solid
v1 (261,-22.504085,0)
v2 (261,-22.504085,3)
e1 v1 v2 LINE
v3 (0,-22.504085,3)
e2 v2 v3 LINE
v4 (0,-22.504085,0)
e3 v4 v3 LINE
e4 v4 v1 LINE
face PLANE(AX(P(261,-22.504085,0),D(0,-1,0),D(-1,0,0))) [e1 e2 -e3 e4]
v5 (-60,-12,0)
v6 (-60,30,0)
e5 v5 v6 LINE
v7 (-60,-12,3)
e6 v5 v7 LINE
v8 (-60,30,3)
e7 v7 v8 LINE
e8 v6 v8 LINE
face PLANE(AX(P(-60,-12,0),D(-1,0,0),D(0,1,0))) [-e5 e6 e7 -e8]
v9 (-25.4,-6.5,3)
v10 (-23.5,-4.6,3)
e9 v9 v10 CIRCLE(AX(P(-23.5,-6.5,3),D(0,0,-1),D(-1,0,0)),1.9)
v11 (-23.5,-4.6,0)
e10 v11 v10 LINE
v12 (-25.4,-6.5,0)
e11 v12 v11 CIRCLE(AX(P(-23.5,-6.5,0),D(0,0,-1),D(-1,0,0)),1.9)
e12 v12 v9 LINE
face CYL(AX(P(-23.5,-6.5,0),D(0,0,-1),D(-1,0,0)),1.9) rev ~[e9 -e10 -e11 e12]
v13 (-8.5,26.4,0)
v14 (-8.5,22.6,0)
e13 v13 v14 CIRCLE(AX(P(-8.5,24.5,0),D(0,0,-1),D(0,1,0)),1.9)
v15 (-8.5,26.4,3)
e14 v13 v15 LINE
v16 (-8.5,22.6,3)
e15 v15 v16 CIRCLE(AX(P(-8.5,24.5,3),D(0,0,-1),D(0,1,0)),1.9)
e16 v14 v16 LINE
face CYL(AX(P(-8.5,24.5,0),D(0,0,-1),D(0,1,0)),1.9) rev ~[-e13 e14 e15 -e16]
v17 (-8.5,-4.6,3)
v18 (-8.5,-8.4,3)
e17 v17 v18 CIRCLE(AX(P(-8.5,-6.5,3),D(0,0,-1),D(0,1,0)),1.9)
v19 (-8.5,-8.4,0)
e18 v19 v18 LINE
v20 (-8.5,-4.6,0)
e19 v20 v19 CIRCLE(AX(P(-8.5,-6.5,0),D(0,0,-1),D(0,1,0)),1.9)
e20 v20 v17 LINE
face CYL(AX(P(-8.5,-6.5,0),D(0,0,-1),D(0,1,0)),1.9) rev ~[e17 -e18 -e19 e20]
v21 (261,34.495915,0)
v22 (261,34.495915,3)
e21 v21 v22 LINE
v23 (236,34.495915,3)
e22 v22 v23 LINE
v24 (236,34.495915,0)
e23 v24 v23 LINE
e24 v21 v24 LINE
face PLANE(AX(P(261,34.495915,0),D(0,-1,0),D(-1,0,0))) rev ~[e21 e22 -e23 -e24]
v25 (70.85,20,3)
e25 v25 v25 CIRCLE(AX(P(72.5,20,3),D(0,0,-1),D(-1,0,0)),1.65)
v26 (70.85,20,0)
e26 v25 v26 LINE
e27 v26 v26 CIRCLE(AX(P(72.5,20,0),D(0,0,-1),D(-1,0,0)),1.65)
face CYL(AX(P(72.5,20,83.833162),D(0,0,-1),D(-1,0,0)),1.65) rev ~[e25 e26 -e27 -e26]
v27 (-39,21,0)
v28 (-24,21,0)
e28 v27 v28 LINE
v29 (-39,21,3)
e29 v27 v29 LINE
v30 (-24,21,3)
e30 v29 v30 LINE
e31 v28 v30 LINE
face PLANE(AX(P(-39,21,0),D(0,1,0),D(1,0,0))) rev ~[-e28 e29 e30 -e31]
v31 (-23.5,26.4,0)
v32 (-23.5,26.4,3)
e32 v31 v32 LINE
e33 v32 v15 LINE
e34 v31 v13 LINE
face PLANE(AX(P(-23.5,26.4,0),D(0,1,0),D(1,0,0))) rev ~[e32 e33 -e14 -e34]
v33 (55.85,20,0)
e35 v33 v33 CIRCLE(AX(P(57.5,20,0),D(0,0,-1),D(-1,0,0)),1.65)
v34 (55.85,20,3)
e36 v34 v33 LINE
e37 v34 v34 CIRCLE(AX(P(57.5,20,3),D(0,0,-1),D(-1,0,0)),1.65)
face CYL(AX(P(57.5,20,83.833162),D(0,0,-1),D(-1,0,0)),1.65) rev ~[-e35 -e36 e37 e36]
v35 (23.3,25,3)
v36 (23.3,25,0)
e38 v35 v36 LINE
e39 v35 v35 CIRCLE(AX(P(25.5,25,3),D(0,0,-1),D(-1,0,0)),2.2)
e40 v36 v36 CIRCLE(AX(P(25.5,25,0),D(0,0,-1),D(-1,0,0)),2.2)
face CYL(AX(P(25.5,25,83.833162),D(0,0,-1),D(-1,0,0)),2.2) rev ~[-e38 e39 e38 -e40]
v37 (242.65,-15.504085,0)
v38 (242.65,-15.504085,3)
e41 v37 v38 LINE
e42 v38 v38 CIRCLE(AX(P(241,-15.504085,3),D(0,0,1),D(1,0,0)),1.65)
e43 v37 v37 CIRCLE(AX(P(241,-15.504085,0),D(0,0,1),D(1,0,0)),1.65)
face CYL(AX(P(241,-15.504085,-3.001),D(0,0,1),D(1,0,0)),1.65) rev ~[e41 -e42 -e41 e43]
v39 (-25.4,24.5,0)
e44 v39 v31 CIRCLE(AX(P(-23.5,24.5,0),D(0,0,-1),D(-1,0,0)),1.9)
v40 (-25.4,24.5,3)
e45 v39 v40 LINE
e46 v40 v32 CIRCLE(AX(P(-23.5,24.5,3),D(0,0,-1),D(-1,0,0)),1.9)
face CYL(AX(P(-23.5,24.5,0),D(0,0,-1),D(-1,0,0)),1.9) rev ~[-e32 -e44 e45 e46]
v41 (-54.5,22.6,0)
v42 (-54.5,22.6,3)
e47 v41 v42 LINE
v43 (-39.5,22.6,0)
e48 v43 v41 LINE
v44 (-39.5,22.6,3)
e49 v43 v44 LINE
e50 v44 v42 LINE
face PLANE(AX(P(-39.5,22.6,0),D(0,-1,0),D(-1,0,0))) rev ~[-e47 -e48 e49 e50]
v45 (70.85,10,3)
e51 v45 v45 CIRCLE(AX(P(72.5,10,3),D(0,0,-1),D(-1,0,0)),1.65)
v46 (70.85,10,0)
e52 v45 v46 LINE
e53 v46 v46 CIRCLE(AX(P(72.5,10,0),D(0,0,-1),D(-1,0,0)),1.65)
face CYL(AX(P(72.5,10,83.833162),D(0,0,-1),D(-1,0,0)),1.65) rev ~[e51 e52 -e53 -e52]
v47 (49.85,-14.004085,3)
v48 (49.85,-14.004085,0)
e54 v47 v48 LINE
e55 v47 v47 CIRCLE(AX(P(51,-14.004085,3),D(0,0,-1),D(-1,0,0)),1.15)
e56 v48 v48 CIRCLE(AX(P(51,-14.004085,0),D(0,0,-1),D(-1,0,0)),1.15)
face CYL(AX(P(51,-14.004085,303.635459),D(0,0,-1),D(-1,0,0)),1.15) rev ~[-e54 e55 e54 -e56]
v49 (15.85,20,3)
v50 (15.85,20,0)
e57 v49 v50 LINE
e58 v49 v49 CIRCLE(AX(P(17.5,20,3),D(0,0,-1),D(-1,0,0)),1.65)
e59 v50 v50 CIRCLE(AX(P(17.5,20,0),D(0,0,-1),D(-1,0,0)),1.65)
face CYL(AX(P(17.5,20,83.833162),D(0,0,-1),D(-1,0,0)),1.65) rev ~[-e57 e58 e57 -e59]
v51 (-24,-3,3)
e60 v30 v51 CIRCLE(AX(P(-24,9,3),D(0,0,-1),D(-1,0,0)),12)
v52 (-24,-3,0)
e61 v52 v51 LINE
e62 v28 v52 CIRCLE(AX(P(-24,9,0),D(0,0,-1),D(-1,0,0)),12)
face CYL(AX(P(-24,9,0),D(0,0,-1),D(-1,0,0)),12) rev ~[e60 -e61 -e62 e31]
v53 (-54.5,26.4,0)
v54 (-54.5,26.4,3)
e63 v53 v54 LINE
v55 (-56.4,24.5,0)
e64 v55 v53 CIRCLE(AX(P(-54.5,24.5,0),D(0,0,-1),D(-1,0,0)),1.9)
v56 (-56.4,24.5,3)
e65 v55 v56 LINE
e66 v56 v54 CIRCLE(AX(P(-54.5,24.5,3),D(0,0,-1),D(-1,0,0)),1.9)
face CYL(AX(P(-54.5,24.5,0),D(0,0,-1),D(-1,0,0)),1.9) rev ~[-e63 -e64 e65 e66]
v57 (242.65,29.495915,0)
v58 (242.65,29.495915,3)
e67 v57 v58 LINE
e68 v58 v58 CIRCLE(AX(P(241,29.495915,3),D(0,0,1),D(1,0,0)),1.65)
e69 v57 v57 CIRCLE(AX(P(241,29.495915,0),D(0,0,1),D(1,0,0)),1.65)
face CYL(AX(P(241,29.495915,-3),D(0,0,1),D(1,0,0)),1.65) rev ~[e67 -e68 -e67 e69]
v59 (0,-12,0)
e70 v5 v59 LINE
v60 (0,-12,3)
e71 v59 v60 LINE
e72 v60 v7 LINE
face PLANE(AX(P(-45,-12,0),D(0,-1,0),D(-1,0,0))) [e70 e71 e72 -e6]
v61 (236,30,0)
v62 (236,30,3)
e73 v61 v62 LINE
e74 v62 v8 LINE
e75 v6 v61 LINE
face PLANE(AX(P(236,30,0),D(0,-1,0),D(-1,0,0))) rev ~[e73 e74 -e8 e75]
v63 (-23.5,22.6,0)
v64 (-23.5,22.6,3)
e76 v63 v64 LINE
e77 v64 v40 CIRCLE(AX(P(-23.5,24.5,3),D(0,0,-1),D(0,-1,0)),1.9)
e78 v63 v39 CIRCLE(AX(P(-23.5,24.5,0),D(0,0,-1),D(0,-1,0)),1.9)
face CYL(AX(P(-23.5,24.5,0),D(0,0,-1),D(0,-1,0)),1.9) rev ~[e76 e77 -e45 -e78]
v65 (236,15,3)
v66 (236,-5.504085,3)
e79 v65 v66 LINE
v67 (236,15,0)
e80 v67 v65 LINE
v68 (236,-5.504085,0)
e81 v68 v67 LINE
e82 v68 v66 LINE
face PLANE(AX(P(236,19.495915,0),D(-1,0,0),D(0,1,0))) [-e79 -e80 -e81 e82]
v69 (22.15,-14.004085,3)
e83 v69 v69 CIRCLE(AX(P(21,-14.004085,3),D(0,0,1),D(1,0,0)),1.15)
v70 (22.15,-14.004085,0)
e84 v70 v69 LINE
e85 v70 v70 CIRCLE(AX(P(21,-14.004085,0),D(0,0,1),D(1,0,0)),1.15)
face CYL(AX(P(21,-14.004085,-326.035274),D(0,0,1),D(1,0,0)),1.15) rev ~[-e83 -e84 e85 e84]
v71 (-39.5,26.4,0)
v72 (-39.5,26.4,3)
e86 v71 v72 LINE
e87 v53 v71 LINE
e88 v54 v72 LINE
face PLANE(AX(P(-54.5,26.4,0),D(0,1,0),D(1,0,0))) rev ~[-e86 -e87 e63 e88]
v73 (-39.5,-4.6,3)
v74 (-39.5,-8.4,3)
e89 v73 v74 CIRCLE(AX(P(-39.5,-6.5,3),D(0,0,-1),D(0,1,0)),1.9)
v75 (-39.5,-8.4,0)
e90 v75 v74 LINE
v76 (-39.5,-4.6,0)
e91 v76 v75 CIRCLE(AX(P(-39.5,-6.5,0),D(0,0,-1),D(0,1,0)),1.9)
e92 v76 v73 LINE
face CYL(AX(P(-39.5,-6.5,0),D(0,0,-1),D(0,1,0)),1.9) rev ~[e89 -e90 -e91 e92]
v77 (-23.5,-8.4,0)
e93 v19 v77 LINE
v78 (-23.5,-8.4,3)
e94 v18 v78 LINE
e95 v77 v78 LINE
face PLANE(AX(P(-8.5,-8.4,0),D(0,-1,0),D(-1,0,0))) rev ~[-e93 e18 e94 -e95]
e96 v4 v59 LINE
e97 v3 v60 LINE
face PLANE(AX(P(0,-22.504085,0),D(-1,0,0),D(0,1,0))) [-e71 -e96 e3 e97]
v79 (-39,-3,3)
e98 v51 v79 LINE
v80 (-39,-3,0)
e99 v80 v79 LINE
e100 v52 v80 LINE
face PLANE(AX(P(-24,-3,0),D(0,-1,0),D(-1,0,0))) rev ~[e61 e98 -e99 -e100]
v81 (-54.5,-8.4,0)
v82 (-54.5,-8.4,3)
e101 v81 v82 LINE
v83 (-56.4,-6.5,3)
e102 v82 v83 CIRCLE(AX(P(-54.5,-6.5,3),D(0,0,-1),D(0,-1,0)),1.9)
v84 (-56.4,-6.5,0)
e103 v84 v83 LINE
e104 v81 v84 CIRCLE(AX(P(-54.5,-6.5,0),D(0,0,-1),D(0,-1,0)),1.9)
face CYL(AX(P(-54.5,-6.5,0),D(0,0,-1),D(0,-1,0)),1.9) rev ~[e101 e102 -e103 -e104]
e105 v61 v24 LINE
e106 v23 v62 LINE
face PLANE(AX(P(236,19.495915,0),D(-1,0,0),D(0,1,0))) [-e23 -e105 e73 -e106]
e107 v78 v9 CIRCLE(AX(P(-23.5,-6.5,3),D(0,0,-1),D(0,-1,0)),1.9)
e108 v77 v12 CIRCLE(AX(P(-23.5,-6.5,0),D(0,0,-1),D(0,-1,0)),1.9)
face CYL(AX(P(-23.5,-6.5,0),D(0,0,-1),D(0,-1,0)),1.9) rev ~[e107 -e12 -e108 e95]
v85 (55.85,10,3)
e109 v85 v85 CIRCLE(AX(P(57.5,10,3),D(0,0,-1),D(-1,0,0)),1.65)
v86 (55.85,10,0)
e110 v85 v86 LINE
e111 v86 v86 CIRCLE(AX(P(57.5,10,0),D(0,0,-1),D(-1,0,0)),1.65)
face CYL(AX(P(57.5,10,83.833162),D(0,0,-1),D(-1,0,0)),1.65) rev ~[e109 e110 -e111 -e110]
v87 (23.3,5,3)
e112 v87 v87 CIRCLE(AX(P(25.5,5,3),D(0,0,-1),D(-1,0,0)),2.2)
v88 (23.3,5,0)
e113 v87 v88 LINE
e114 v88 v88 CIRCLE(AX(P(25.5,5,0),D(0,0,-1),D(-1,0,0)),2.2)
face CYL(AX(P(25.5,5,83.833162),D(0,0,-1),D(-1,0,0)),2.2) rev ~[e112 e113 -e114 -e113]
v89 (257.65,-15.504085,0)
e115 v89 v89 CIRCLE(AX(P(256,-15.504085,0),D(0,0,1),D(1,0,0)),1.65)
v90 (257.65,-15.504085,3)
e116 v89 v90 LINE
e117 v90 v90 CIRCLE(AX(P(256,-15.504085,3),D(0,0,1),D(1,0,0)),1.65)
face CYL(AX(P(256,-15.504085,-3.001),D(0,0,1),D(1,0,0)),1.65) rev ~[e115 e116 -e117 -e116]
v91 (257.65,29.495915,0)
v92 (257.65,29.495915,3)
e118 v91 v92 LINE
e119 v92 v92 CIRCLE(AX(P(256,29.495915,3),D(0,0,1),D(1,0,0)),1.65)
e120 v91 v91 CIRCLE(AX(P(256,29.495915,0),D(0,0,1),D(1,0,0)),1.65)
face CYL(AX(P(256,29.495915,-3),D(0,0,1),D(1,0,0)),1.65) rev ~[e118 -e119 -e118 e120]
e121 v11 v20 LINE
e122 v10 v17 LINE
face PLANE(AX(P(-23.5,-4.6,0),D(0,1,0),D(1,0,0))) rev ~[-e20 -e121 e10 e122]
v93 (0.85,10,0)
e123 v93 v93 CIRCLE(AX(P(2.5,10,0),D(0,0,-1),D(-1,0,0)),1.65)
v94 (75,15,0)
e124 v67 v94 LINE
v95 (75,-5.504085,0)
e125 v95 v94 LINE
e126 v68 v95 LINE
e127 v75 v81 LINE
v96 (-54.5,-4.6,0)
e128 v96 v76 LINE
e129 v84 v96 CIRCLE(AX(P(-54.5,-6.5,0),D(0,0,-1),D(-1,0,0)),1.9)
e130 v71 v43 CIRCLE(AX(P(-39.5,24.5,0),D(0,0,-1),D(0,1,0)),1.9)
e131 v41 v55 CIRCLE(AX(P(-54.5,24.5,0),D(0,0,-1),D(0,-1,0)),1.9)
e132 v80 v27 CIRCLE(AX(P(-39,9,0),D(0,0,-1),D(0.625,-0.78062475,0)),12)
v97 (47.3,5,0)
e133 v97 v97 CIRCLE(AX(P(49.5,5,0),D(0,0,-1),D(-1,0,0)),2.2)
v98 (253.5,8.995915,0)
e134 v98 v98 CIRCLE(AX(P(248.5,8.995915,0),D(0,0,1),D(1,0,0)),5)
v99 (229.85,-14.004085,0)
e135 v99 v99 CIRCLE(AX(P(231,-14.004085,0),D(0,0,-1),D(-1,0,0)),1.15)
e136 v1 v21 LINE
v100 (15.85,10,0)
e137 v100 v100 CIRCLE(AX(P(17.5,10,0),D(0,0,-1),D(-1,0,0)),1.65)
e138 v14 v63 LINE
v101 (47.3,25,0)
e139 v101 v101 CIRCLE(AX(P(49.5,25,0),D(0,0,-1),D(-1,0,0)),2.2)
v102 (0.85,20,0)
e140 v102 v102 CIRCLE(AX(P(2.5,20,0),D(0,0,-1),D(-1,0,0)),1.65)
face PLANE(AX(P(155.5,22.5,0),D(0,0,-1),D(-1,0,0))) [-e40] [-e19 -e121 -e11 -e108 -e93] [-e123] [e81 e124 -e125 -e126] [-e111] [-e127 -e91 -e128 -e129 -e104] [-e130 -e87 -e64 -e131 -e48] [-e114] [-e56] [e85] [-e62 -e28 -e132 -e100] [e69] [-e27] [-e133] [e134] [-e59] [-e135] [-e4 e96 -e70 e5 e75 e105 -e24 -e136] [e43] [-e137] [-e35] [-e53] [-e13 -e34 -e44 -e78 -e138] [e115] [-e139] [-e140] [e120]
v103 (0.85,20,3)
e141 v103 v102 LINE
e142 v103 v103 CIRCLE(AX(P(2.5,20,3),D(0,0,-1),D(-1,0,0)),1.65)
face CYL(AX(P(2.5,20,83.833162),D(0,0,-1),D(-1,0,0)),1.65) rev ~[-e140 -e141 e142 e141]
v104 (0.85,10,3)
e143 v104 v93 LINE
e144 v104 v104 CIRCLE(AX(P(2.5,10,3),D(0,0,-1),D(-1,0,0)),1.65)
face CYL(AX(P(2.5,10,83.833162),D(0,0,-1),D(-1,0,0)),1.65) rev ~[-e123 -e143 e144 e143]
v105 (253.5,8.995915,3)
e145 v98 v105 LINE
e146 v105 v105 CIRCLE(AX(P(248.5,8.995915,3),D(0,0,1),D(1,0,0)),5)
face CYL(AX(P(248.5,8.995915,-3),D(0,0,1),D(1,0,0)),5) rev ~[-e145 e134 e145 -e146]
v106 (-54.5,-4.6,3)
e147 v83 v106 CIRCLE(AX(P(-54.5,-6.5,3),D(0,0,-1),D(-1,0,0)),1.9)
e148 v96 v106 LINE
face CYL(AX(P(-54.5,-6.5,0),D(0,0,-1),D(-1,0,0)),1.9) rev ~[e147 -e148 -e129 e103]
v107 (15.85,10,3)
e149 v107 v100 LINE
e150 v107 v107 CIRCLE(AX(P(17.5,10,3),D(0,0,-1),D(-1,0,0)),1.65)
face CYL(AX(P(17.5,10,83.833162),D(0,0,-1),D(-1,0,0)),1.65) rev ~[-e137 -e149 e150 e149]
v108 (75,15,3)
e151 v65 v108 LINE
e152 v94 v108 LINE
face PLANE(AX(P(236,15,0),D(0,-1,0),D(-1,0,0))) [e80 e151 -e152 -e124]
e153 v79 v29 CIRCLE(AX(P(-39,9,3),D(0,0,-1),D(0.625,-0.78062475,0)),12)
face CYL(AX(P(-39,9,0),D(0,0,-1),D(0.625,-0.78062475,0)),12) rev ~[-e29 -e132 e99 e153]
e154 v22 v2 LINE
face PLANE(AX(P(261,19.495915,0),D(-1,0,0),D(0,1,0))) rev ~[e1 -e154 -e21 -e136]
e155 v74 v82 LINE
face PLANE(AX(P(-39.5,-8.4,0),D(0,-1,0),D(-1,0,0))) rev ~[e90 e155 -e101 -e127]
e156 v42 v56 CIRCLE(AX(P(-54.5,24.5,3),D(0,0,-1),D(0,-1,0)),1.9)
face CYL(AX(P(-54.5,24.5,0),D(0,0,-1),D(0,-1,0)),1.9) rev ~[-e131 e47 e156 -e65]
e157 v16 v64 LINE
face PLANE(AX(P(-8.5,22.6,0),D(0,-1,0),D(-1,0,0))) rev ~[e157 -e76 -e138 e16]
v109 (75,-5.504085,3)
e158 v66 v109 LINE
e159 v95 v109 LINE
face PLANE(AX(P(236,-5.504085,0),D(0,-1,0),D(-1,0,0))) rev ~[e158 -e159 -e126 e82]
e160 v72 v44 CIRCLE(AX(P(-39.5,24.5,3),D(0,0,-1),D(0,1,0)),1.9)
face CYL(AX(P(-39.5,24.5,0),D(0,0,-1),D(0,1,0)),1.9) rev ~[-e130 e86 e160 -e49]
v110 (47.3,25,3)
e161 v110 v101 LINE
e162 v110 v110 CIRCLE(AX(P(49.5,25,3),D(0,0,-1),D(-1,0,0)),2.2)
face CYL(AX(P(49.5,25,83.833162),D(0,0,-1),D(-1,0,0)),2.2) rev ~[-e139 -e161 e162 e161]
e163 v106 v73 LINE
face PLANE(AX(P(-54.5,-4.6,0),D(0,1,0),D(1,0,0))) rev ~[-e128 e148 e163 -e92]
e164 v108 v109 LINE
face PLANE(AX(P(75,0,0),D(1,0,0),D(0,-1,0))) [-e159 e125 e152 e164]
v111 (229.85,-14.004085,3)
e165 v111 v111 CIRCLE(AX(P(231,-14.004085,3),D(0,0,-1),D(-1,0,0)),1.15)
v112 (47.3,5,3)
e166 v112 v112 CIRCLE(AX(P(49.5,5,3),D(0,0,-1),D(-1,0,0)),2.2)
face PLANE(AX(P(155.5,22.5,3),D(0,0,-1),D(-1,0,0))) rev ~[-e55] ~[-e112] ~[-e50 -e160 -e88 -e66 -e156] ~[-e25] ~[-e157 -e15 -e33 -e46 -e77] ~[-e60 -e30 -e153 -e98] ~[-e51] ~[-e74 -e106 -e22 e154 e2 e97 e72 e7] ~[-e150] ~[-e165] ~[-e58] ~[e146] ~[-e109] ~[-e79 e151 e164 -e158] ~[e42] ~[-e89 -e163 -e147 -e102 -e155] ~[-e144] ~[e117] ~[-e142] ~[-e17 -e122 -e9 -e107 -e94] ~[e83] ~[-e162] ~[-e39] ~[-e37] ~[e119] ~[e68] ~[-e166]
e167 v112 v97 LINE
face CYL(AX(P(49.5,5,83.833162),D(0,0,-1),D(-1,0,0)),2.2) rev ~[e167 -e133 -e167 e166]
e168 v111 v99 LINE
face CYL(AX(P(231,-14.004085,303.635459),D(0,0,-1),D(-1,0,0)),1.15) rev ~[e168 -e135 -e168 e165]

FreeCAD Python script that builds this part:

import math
import FreeCAD as App
import Part
import Sketcher

V = App.Vector

doc = App.newDocument("Part")
body = doc.addObject("PartDesign::Body", "Body")

# Sketch on XY plane
sketch1 = body.newObject("Sketcher::SketchObject", "Sketch")
sketch1.AttachmentSupport = (doc.getObject("XY_Plane"), [""])
sketch1.MapMode = "FlatFace"
sketch1.addGeometry(Part.LineSegment(V(0, 30, 0), V(0, 0, 0)), False)
sketch1.addGeometry(Part.LineSegment(V(0, 0, 0), V(75, 0, 0)), False)
sketch1.addGeometry(Part.LineSegment(V(75, 0, 0), V(75, 30, 0)), False)
sketch1.addGeometry(Part.LineSegment(V(75, 30, 0), V(0, 30, 0)), False)
sketch1.addConstraint(Sketcher.Constraint("Coincident", 0, 2, 1, 1))
sketch1.addConstraint(Sketcher.Constraint("Coincident", 1, 2, 2, 1))
sketch1.addConstraint(Sketcher.Constraint("Coincident", 2, 2, 3, 1))
sketch1.addConstraint(Sketcher.Constraint("Coincident", 3, 2, 0, 1))
sketch1.addConstraint(Sketcher.Constraint("Vertical", 0))
sketch1.addConstraint(Sketcher.Constraint("Horizontal", 1))
sketch1.addConstraint(Sketcher.Constraint("Vertical", 2))
sketch1.addConstraint(Sketcher.Constraint("Horizontal", 3))
sketch1.addConstraint(Sketcher.Constraint("Coincident", 0, 2, -1, 1))
sketch1.addConstraint(Sketcher.Constraint("DistanceX", 1, 1, 1, 2, 75.0))
sketch1.addConstraint(Sketcher.Constraint("DistanceY", 0, 2, 0, 1, 30.0))
pad1 = body.newObject("PartDesign::Pad", "Pad")
pad1.Profile = sketch1
pad1.Length = 3

# Sketch on XY plane
sketch2 = body.newObject("Sketcher::SketchObject", "Sketch001")
sketch2.AttachmentSupport = (doc.getObject("XY_Plane"), [""])
sketch2.MapMode = "FlatFace"
sketch2.AttachmentOffset = App.Placement(V(0, 0, 3), App.Rotation())
sketch2.addGeometry(Part.Circle(V(25.5, 25, 0), V(0, 0, 1), 2.2), False)
sketch2.addGeometry(Part.Circle(V(49.5, 25, 0), V(0, 0, 1), 2.2), False)
sketch2.addGeometry(Part.Circle(V(49.5, 5, 0), V(0, 0, 1), 2.2), False)
sketch2.addGeometry(Part.Circle(V(25.5, 5, 0), V(0, 0, 1), 2.2), False)
sketch2.addConstraint(Sketcher.Constraint("Equal", 0, 1))
sketch2.addConstraint(Sketcher.Constraint("Equal", 1, 2))
sketch2.addConstraint(Sketcher.Constraint("Equal", 2, 3))
sketch2.addConstraint(Sketcher.Constraint("Horizontal", 0, 3, 1, 3))
sketch2.addConstraint(Sketcher.Constraint("Horizontal", 2, 3, 3, 3))
sketch2.addConstraint(Sketcher.Constraint("Vertical", 1, 3, 2, 3))
sketch2.addConstraint(Sketcher.Constraint("Vertical", 0, 3, 3, 3))
sketch2.addConstraint(Sketcher.Constraint("Diameter", 0, 4.4))
sketch2.addConstraint(Sketcher.Constraint("DistanceY", -1, 1, 0, 3, 25.0))
sketch2.addConstraint(Sketcher.Constraint("DistanceY", -1, 1, 2, 3, 5.0))
sketch2.addConstraint(Sketcher.Constraint("DistanceX", 0, 3, 1, 3, 24.0))
sketch2.addConstraint(Sketcher.Constraint("DistanceX", -1, 1, 0, 3, 25.5))
doc.recompute()
hole = body.newObject("PartDesign::Hole", "Hole")
hole.Profile = sketch2
hole.ThreadType = "None"
hole.Diameter = 4.4
hole.DepthType = "ThroughAll"

# Sketch on XY plane
sketch3 = body.newObject("Sketcher::SketchObject", "Sketch002")
sketch3.AttachmentSupport = (doc.getObject("XY_Plane"), [""])
sketch3.MapMode = "FlatFace"
sketch3.AttachmentOffset = App.Placement(V(0, 0, 3), App.Rotation())
sketch3.addGeometry(Part.Circle(V(2.5, 20, 0), V(0, 0, 1), 1.6), False)
sketch3.addGeometry(Part.Circle(V(17.5, 20, 0), V(0, 0, 1), 1.6), False)
sketch3.addGeometry(Part.Circle(V(17.5, 10, 0), V(0, 0, 1), 1.6), False)
sketch3.addGeometry(Part.Circle(V(2.5, 10, 0), V(0, 0, 1), 1.6), False)
sketch3.addGeometry(Part.Circle(V(57.5, 10, 0), V(0, 0, 1), 1.6), False)
sketch3.addGeometry(Part.Circle(V(57.5, 20, 0), V(0, 0, 1), 1.6), False)
sketch3.addGeometry(Part.Circle(V(72.5, 20, 0), V(0, 0, 1), 1.6), False)
sketch3.addGeometry(Part.Circle(V(72.5, 10, 0), V(0, 0, 1), 1.6), False)
sketch3.addConstraint(Sketcher.Constraint("Equal", 0, 1))
sketch3.addConstraint(Sketcher.Constraint("Equal", 1, 2))
sketch3.addConstraint(Sketcher.Constraint("Equal", 2, 3))
sketch3.addConstraint(Sketcher.Constraint("Equal", 3, 4))
sketch3.addConstraint(Sketcher.Constraint("Equal", 4, 5))
sketch3.addConstraint(Sketcher.Constraint("Equal", 5, 6))
sketch3.addConstraint(Sketcher.Constraint("Equal", 6, 7))
sketch3.addConstraint(Sketcher.Constraint("Horizontal", 0, 3, 1, 3))
sketch3.addConstraint(Sketcher.Constraint("Horizontal", 2, 3, 3, 3))
sketch3.addConstraint(Sketcher.Constraint("Horizontal", 3, 3, 4, 3))
sketch3.addConstraint(Sketcher.Constraint("Horizontal", 1, 3, 5, 3))
sketch3.addConstraint(Sketcher.Constraint("Horizontal", 5, 3, 6, 3))
sketch3.addConstraint(Sketcher.Constraint("Horizontal", 4, 3, 7, 3))
sketch3.addConstraint(Sketcher.Constraint("Vertical", 1, 3, 2, 3))
sketch3.addConstraint(Sketcher.Constraint("Vertical", 0, 3, 3, 3))
sketch3.addConstraint(Sketcher.Constraint("Vertical", 4, 3, 5, 3))
sketch3.addConstraint(Sketcher.Constraint("Vertical", 6, 3, 7, 3))
sketch3.addConstraint(Sketcher.Constraint("Diameter", 0, 3.3))
sketch3.addConstraint(Sketcher.Constraint("DistanceY", -1, 1, 0, 3, 20.0))
sketch3.addConstraint(Sketcher.Constraint("DistanceY", -1, 1, 2, 3, 10.0))
sketch3.addConstraint(Sketcher.Constraint("DistanceX", 0, 3, 1, 3, 15.0))
sketch3.addConstraint(Sketcher.Constraint("DistanceX", 2, 3, 4, 3, 40.0))
sketch3.addConstraint(Sketcher.Constraint("DistanceX", 5, 3, 6, 3, 15.0))
sketch3.addConstraint(Sketcher.Constraint("DistanceX", -1, 1, 0, 3, 2.5))
doc.recompute()
hole2 = body.newObject("PartDesign::Hole", "Hole001")
hole2.Profile = sketch3
hole2.ThreadType = "None"
hole2.Diameter = 3.3
hole2.DepthType = "ThroughAll"

# Sketch on XY plane
sketch4 = body.newObject("Sketcher::SketchObject", "Sketch003")
sketch4.AttachmentSupport = (doc.getObject("XY_Plane"), [""])
sketch4.MapMode = "FlatFace"
sketch4.addGeometry(Part.LineSegment(V(0, 30, 0), V(0, -12, 0)), False)
sketch4.addGeometry(Part.LineSegment(V(0, -12, 0), V(-45, -12, 0)), False)
sketch4.addGeometry(Part.LineSegment(V(-45, -12, 0), V(-45, 30, 0)), False)
sketch4.addGeometry(Part.LineSegment(V(-45, 30, 0), V(0, 30, 0)), False)
sketch4.addConstraint(Sketcher.Constraint("Coincident", 0, 2, 1, 1))
sketch4.addConstraint(Sketcher.Constraint("Coincident", 1, 2, 2, 1))
sketch4.addConstraint(Sketcher.Constraint("Coincident", 2, 2, 3, 1))
sketch4.addConstraint(Sketcher.Constraint("Coincident", 3, 2, 0, 1))
sketch4.addConstraint(Sketcher.Constraint("Vertical", 0))
sketch4.addConstraint(Sketcher.Constraint("Horizontal", 1))
sketch4.addConstraint(Sketcher.Constraint("Vertical", 2))
sketch4.addConstraint(Sketcher.Constraint("Horizontal", 3))
sketch4.addConstraint(Sketcher.Constraint("PointOnObject", 0, 2, -2))
sketch4.addConstraint(Sketcher.Constraint("DistanceX", 1, 2, 1, 1, 45.0))
sketch4.addConstraint(Sketcher.Constraint("DistanceY", 0, 2, 0, 1, 42.0))
sketch4.addConstraint(Sketcher.Constraint("DistanceY", 0, 2, -1, 1, 12.0))
pad2 = body.newObject("PartDesign::Pad", "Pad001")
pad2.Profile = sketch4
pad2.Length = 3

# Sketch on XY plane
sketch5 = body.newObject("Sketcher::SketchObject", "Sketch004")
sketch5.AttachmentSupport = (doc.getObject("XY_Plane"), [""])
sketch5.MapMode = "FlatFace"
sketch5.AttachmentOffset = App.Placement(V(0, 0, 3), App.Rotation())
sketch5.addGeometry(Part.Circle(V(-39.5, 24.5, 0), V(0, 0, 1), 1.9), False)
sketch5.addGeometry(Part.Circle(V(-8.5, 24.5, 0), V(0, 0, 1), 1.9), False)
sketch5.addGeometry(Part.Circle(V(-8.5, -6.5, 0), V(0, 0, 1), 1.9), False)
sketch5.addGeometry(Part.Circle(V(-39.5, -6.5, 0), V(0, 0, 1), 1.9), False)
sketch5.addConstraint(Sketcher.Constraint("Equal", 0, 1))
sketch5.addConstraint(Sketcher.Constraint("Equal", 1, 2))
sketch5.addConstraint(Sketcher.Constraint("Equal", 2, 3))
sketch5.addConstraint(Sketcher.Constraint("Horizontal", 0, 3, 1, 3))
sketch5.addConstraint(Sketcher.Constraint("Horizontal", 2, 3, 3, 3))
sketch5.addConstraint(Sketcher.Constraint("Vertical", 1, 3, 2, 3))
sketch5.addConstraint(Sketcher.Constraint("Vertical", 0, 3, 3, 3))
sketch5.addConstraint(Sketcher.Constraint("Diameter", 0, 3.8))
sketch5.addConstraint(Sketcher.Constraint("DistanceX", 0, 3, 1, 3, 31.0))
sketch5.addConstraint(Sketcher.Constraint("DistanceY", 2, 3, 1, 3, 31.0))
sketch5.addConstraint(Sketcher.Constraint("DistanceX", 0, 3, -1, 1, 39.5))
sketch5.addConstraint(Sketcher.Constraint("DistanceY", -1, 1, 0, 3, 24.5))
doc.recompute()
hole3 = body.newObject("PartDesign::Hole", "Hole002")
hole3.Profile = sketch5
hole3.ThreadType = "None"
hole3.Diameter = 3.8
hole3.DepthType = "ThroughAll"

# Sketch on XY plane
sketch6 = body.newObject("Sketcher::SketchObject", "Sketch005")
sketch6.AttachmentSupport = (doc.getObject("XY_Plane"), [""])
sketch6.MapMode = "FlatFace"
sketch6.addGeometry(Part.LineSegment(V(-45, 30, 0), V(-45, -12, 0)), False)
sketch6.addGeometry(Part.LineSegment(V(-45, -12, 0), V(-60, -12, 0)), False)
sketch6.addGeometry(Part.LineSegment(V(-60, -12, 0), V(-60, 30, 0)), False)
sketch6.addGeometry(Part.LineSegment(V(-60, 30, 0), V(-45, 30, 0)), False)
sketch6.addConstraint(Sketcher.Constraint("Coincident", 0, 2, 1, 1))
sketch6.addConstraint(Sketcher.Constraint("Coincident", 1, 2, 2, 1))
sketch6.addConstraint(Sketcher.Constraint("Coincident", 2, 2, 3, 1))
sketch6.addConstraint(Sketcher.Constraint("Coincident", 3, 2, 0, 1))
sketch6.addConstraint(Sketcher.Constraint("Vertical", 0))
sketch6.addConstraint(Sketcher.Constraint("Horizontal", 1))
sketch6.addConstraint(Sketcher.Constraint("Vertical", 2))
sketch6.addConstraint(Sketcher.Constraint("Horizontal", 3))
sketch6.addConstraint(Sketcher.Constraint("DistanceX", 1, 2, 1, 1, 15.0))
sketch6.addConstraint(Sketcher.Constraint("DistanceY", 0, 2, 0, 1, 42.0))
sketch6.addConstraint(Sketcher.Constraint("DistanceX", 0, 2, -1, 1, 45.0))
sketch6.addConstraint(Sketcher.Constraint("DistanceY", 0, 2, -1, 1, 12.0))
pad3 = body.newObject("PartDesign::Pad", "Pad002")
pad3.Profile = sketch6
pad3.Length = 3

# Sketch on XY plane
sketch7 = body.newObject("Sketcher::SketchObject", "Sketch006")
sketch7.AttachmentSupport = (doc.getObject("XY_Plane"), [""])
sketch7.MapMode = "FlatFace"
sketch7.addGeometry(Part.ArcOfCircle(Part.Circle(V(-23.5, 24.5, 0), V(0, 0, 1), 1.9), math.radians(-180), math.radians(-90)), False)
sketch7.addGeometry(Part.ArcOfCircle(Part.Circle(V(-23.5, 24.5, 0), V(0, 0, 1), 1.9), math.radians(90), math.radians(180)), False)
sketch7.addGeometry(Part.LineSegment(V(-23.5, 26.4, 0), V(-8.5, 26.4, 0)), False)
sketch7.addGeometry(Part.ArcOfCircle(Part.Circle(V(-8.5, 24.5, 0), V(0, 0, 1), 1.9), math.radians(-90), math.radians(90)), False)
sketch7.addGeometry(Part.LineSegment(V(-8.5, 22.6, 0), V(-23.5, 22.6, 0)), False)
sketch7.addGeometry(Part.ArcOfCircle(Part.Circle(V(-8.5, -6.5, 0), V(0, 0, 1), 1.9), math.radians(-90), math.radians(90)), False)
sketch7.addGeometry(Part.LineSegment(V(-8.5, -8.4, 0), V(-23.5, -8.4, 0)), False)
sketch7.addGeometry(Part.ArcOfCircle(Part.Circle(V(-23.5, -6.5, 0), V(0, 0, 1), 1.9), math.radians(-180), math.radians(-90)), False)
sketch7.addGeometry(Part.ArcOfCircle(Part.Circle(V(-23.5, -6.5, 0), V(0, 0, 1), 1.9), math.radians(90), math.radians(180)), False)
sketch7.addGeometry(Part.LineSegment(V(-23.5, -4.6, 0), V(-8.5, -4.6, 0)), False)
sketch7.addGeometry(Part.ArcOfCircle(Part.Circle(V(-54.5, 24.5, 0), V(0, 0, 1), 1.9), math.radians(-180), math.radians(-90)), False)
sketch7.addGeometry(Part.ArcOfCircle(Part.Circle(V(-54.5, 24.5, 0), V(0, 0, 1), 1.9), math.radians(90), math.radians(180)), False)
sketch7.addGeometry(Part.LineSegment(V(-54.5, 26.4, 0), V(-39.5, 26.4, 0)), False)
sketch7.addGeometry(Part.ArcOfCircle(Part.Circle(V(-39.5, 24.5, 0), V(0, 0, 1), 1.9), math.radians(-90), math.radians(90)), False)
sketch7.addGeometry(Part.LineSegment(V(-39.5, 22.6, 0), V(-54.5, 22.6, 0)), False)
sketch7.addGeometry(Part.ArcOfCircle(Part.Circle(V(-54.5, -6.5, 0), V(0, 0, 1), 1.9), math.radians(90), math.radians(180)), False)
sketch7.addGeometry(Part.LineSegment(V(-54.5, -4.6, 0), V(-39.5, -4.6, 0)), False)
sketch7.addGeometry(Part.ArcOfCircle(Part.Circle(V(-39.5, -6.5, 0), V(0, 0, 1), 1.9), math.radians(-90), math.radians(90)), False)
sketch7.addGeometry(Part.LineSegment(V(-39.5, -8.4, 0), V(-54.5, -8.4, 0)), False)
sketch7.addGeometry(Part.ArcOfCircle(Part.Circle(V(-54.5, -6.5, 0), V(0, 0, 1), 1.9), math.radians(-180), math.radians(-90)), False)
sketch7.addConstraint(Sketcher.Constraint("Tangent", 0, 1, 1, 2))
sketch7.addConstraint(Sketcher.Constraint("Tangent", 1, 1, 2, 1))
sketch7.addConstraint(Sketcher.Constraint("Tangent", 2, 2, 3, 2))
sketch7.addConstraint(Sketcher.Constraint("Tangent", 3, 1, 4, 1))
sketch7.addConstraint(Sketcher.Constraint("Tangent", 4, 2, 0, 2))
sketch7.addConstraint(Sketcher.Constraint("Tangent", 5, 1, 6, 1))
sketch7.addConstraint(Sketcher.Constraint("Tangent", 6, 2, 7, 2))
sketch7.addConstraint(Sketcher.Constraint("Tangent", 7, 1, 8, 2))
sketch7.addConstraint(Sketcher.Constraint("Tangent", 8, 1, 9, 1))
sketch7.addConstraint(Sketcher.Constraint("Tangent", 9, 2, 5, 2))
sketch7.addConstraint(Sketcher.Constraint("Tangent", 10, 1, 11, 2))
sketch7.addConstraint(Sketcher.Constraint("Tangent", 11, 1, 12, 1))
sketch7.addConstraint(Sketcher.Constraint("Tangent", 12, 2, 13, 2))
sketch7.addConstraint(Sketcher.Constraint("Tangent", 13, 1, 14, 1))
sketch7.addConstraint(Sketcher.Constraint("Tangent", 14, 2, 10, 2))
sketch7.addConstraint(Sketcher.Constraint("Tangent", 15, 1, 16, 1))
sketch7.addConstraint(Sketcher.Constraint("Tangent", 16, 2, 17, 2))
sketch7.addConstraint(Sketcher.Constraint("Tangent", 17, 1, 18, 1))
sketch7.addConstraint(Sketcher.Constraint("Tangent", 18, 2, 19, 2))
sketch7.addConstraint(Sketcher.Constraint("Tangent", 19, 1, 15, 2))
sketch7.addConstraint(Sketcher.Constraint("Horizontal", 2))
sketch7.addConstraint(Sketcher.Constraint("Horizontal", 4))
sketch7.addConstraint(Sketcher.Constraint("Horizontal", 6))
sketch7.addConstraint(Sketcher.Constraint("Horizontal", 9))
sketch7.addConstraint(Sketcher.Constraint("Horizontal", 12))
sketch7.addConstraint(Sketcher.Constraint("Horizontal", 14))
sketch7.addConstraint(Sketcher.Constraint("Horizontal", 16))
sketch7.addConstraint(Sketcher.Constraint("Horizontal", 18))
sketch7.addConstraint(Sketcher.Constraint("Equal", 0, 1))
sketch7.addConstraint(Sketcher.Constraint("Equal", 3, 5))
sketch7.addConstraint(Sketcher.Constraint("Equal", 5, 7))
sketch7.addConstraint(Sketcher.Constraint("Equal", 8, 10))
sketch7.addConstraint(Sketcher.Constraint("Equal", 10, 11))
sketch7.addConstraint(Sketcher.Constraint("Equal", 13, 15))
sketch7.addConstraint(Sketcher.Constraint("Equal", 15, 17))
sketch7.addConstraint(Sketcher.Constraint("Horizontal", 3, 3, 10, 3))
sketch7.addConstraint(Sketcher.Constraint("Horizontal", 8, 3, 15, 3))
sketch7.addConstraint(Sketcher.Constraint("Horizontal", 13, 3, 0, 1))
sketch7.addConstraint(Sketcher.Constraint("Horizontal", 19, 3, 7, 1))
sketch7.addConstraint(Sketcher.Constraint("Horizontal", 0, 1, 10, 1))
sketch7.addConstraint(Sketcher.Constraint("Horizontal", 7, 1, 19, 1))
sketch7.addConstraint(Sketcher.Constraint("Vertical", 3, 3, 5, 3))
sketch7.addConstraint(Sketcher.Constraint("Vertical", 1, 3, 7, 3))
sketch7.addConstraint(Sketcher.Constraint("Vertical", 11, 3, 15, 3))
sketch7.addConstraint(Sketcher.Constraint("Vertical", 13, 3, 17, 3))
sketch7.addConstraint(Sketcher.Constraint("Equal", 9, 12))
sketch7.addConstraint(Sketcher.Constraint("Radius", 0, 1.9))
sketch7.addConstraint(Sketcher.Constraint("DistanceX", 2, 1, 2, 2, 15.0))
sketch7.addConstraint(Sketcher.Constraint("DistanceY", 5, 3, 3, 3, 31.0))
sketch7.addConstraint(Sketcher.Constraint("DistanceX", 10, 3, 0, 3, 31.0))
sketch7.addConstraint(Sketcher.Constraint("DistanceX", 0, 3, -1, 1, 23.5))
sketch7.addConstraint(Sketcher.Constraint("DistanceY", -1, 1, 0, 3, 24.5))
pocket1 = body.newObject("PartDesign::Pocket", "Pocket")
pocket1.Profile = sketch7
pocket1.Length = 3
pocket1.Reversed = True

# Sketch on XY plane
sketch8 = body.newObject("Sketcher::SketchObject", "Sketch007")
sketch8.AttachmentSupport = (doc.getObject("XY_Plane"), [""])
sketch8.MapMode = "FlatFace"
sketch8.addGeometry(Part.LineSegment(V(-24, 20.504, 0), V(-24, -2.489, 0)), False)
sketch8.addGeometry(Part.LineSegment(V(-24, -2.489, 0), V(-39.5, -2.489, 0)), False)
sketch8.addGeometry(Part.ArcOfCircle(Part.Circle(V(-39, 9, 0), V(0, 0, 1), 11.5), math.radians(92), math.radians(268)), False)
sketch8.addGeometry(Part.LineSegment(V(-39.5, 20.489, 0), V(-39.5, 20.504, 0)), False)
sketch8.addGeometry(Part.LineSegment(V(-39.5, 20.504, 0), V(-24, 20.504, 0)), False)
sketch8.addConstraint(Sketcher.Constraint("Coincident", 0, 2, 1, 1))
sketch8.addConstraint(Sketcher.Constraint("Coincident", 1, 2, 2, 2))
sketch8.addConstraint(Sketcher.Constraint("Coincident", 2, 1, 3, 1))
sketch8.addConstraint(Sketcher.Constraint("Coincident", 3, 2, 4, 1))
sketch8.addConstraint(Sketcher.Constraint("Coincident", 4, 2, 0, 1))
sketch8.addConstraint(Sketcher.Constraint("Vertical", 0))
sketch8.addConstraint(Sketcher.Constraint("Horizontal", 1))
sketch8.addConstraint(Sketcher.Constraint("Vertical", 3))
sketch8.addConstraint(Sketcher.Constraint("Horizontal", 4))
sketch8.addConstraint(Sketcher.Constraint("Vertical", 1, 2, 2, 1))
sketch8.addConstraint(Sketcher.Constraint("Radius", 2, 11.5))
sketch8.addConstraint(Sketcher.Constraint("DistanceX", 1, 2, 1, 1, 15.5))
sketch8.addConstraint(Sketcher.Constraint("DistanceX", 2, 3, -1, 1, 39.0))
sketch8.addConstraint(Sketcher.Constraint("DistanceY", -1, 1, 2, 3, 9.0))
sketch8.addConstraint(Sketcher.Constraint("DistanceX", 0, 2, -1, 1, 24.0))
sketch8.addConstraint(Sketcher.Constraint("DistanceY", 0, 2, 0, 1, 22.99321))
pocket2 = body.newObject("PartDesign::Pocket", "Pocket001")
pocket2.Profile = sketch8
pocket2.Length = 3
pocket2.Reversed = True

# Sketch on XY plane
sketch9 = body.newObject("Sketcher::SketchObject", "Sketch008")
sketch9.AttachmentSupport = (doc.getObject("XY_Plane"), [""])
sketch9.MapMode = "FlatFace"
sketch9.addGeometry(Part.ArcOfCircle(Part.Circle(V(-24, 9, 0), V(0, 0, 1), 12), math.radians(-90), math.radians(90)), False)
sketch9.addGeometry(Part.LineSegment(V(-24, -3, 0), V(-24, 21, 0)), False)
sketch9.addConstraint(Sketcher.Constraint("Coincident", 0, 1, 1, 1))
sketch9.addConstraint(Sketcher.Constraint("Coincident", 1, 2, 0, 2))
sketch9.addConstraint(Sketcher.Constraint("Vertical", 1))
sketch9.addConstraint(Sketcher.Constraint("DistanceX", 0, 3, -1, 1, 24.0))
sketch9.addConstraint(Sketcher.Constraint("DistanceY", -1, 1, 0, 3, 9.0))
sketch9.addConstraint(Sketcher.Constraint("DistanceX", 0, 1, -1, 1, 24.0))
sketch9.addConstraint(Sketcher.Constraint("Radius", 0, 11.504085))
pocket3 = body.newObject("PartDesign::Pocket", "Pocket002")
pocket3.Profile = sketch9
pocket3.Length = 3
pocket3.Reversed = True

# Sketch on XY plane
sketch10 = body.newObject("Sketcher::SketchObject", "Sketch009")
sketch10.AttachmentSupport = (doc.getObject("XY_Plane"), [""])
sketch10.MapMode = "FlatFace"
sketch10.addGeometry(Part.LineSegment(V(75, 0, 0), V(75, -6, 0)), False)
sketch10.addGeometry(Part.LineSegment(V(75, -6, 0), V(236, -6, 0)), False)
sketch10.addGeometry(Part.LineSegment(V(236, -6, 0), V(236, -23, 0)), False)
sketch10.addGeometry(Part.LineSegment(V(236, -23, 0), V(0, -23, 0)), False)
sketch10.addGeometry(Part.LineSegment(V(0, -23, 0), V(0, 0, 0)), False)
sketch10.addGeometry(Part.LineSegment(V(0, 0, 0), V(75, 0, 0)), False)
sketch10.addConstraint(Sketcher.Constraint("Coincident", 0, 2, 1, 1))
sketch10.addConstraint(Sketcher.Constraint("Coincident", 1, 2, 2, 1))
sketch10.addConstraint(Sketcher.Constraint("Coincident", 2, 2, 3, 1))
sketch10.addConstraint(Sketcher.Constraint("Coincident", 3, 2, 4, 1))
sketch10.addConstraint(Sketcher.Constraint("Coincident", 4, 2, 5, 1))
sketch10.addConstraint(Sketcher.Constraint("Coincident", 5, 2, 0, 1))
sketch10.addConstraint(Sketcher.Constraint("Vertical", 0))
sketch10.addConstraint(Sketcher.Constraint("Horizontal", 1))
sketch10.addConstraint(Sketcher.Constraint("Vertical", 2))
sketch10.addConstraint(Sketcher.Constraint("Horizontal", 3))
sketch10.addConstraint(Sketcher.Constraint("Vertical", 4))
sketch10.addConstraint(Sketcher.Constraint("Horizontal", 5))
sketch10.addConstraint(Sketcher.Constraint("Coincident", 4, 2, -1, 1))
sketch10.addConstraint(Sketcher.Constraint("DistanceX", 1, 1, 1, 2, 161.0))
sketch10.addConstraint(Sketcher.Constraint("DistanceX", 3, 2, 3, 1, 236.0))
sketch10.addConstraint(Sketcher.Constraint("DistanceY", 2, 2, 2, 1, 17.0))
sketch10.addConstraint(Sketcher.Constraint("DistanceY", 0, 2, 0, 1, 5.504085))
pad4 = body.newObject("PartDesign::Pad", "Pad003")
pad4.Profile = sketch10
pad4.Length = 3

# Sketch on XY plane
sketch11 = body.newObject("Sketcher::SketchObject", "Sketch010")
sketch11.AttachmentSupport = (doc.getObject("XY_Plane"), [""])
sketch11.MapMode = "FlatFace"
sketch11.AttachmentOffset = App.Placement(V(0, 0, 3), App.Rotation())
sketch11.addGeometry(Part.Circle(V(51, -14, 0), V(0, 0, 1), 1.1), False)
sketch11.addGeometry(Part.Circle(V(231, -14, 0), V(0, 0, 1), 1.1), False)
sketch11.addConstraint(Sketcher.Constraint("Equal", 0, 1))
sketch11.addConstraint(Sketcher.Constraint("Horizontal", 0, 3, 1, 3))
sketch11.addConstraint(Sketcher.Constraint("Diameter", 0, 2.3))
sketch11.addConstraint(Sketcher.Constraint("DistanceX", -1, 1, 0, 3, 51.0))
sketch11.addConstraint(Sketcher.Constraint("DistanceX", -1, 1, 1, 3, 231.0))
sketch11.addConstraint(Sketcher.Constraint("DistanceY", 0, 3, -1, 1, 14.004085))
doc.recompute()
hole4 = body.newObject("PartDesign::Hole", "Hole003")
hole4.Profile = sketch11
hole4.ThreadType = "None"
hole4.Diameter = 2.3
hole4.DepthType = "ThroughAll"

# Sketch on XY plane
sketch12 = body.newObject("Sketcher::SketchObject", "Sketch011")
sketch12.AttachmentSupport = (doc.getObject("XY_Plane"), [""])
sketch12.MapMode = "FlatFace"
sketch12.addGeometry(Part.LineSegment(V(261, 19, 0), V(261, -23, 0)), False)
sketch12.addGeometry(Part.LineSegment(V(261, -23, 0), V(236, -23, 0)), False)
sketch12.addGeometry(Part.LineSegment(V(236, -23, 0), V(236, 19, 0)), False)
sketch12.addGeometry(Part.LineSegment(V(236, 19, 0), V(261, 19, 0)), False)
sketch12.addConstraint(Sketcher.Constraint("Coincident", 0, 2, 1, 1))
sketch12.addConstraint(Sketcher.Constraint("Coincident", 1, 2, 2, 1))
sketch12.addConstraint(Sketcher.Constraint("Coincident", 2, 2, 3, 1))
sketch12.addConstraint(Sketcher.Constraint("Coincident", 3, 2, 0, 1))
sketch12.addConstraint(Sketcher.Constraint("Vertical", 0))
sketch12.addConstraint(Sketcher.Constraint("Horizontal", 1))
sketch12.addConstraint(Sketcher.Constraint("Vertical", 2))
sketch12.addConstraint(Sketcher.Constraint("Horizontal", 3))
sketch12.addConstraint(Sketcher.Constraint("DistanceX", 1, 2, 1, 1, 25.0))
sketch12.addConstraint(Sketcher.Constraint("DistanceY", 0, 2, 0, 1, 42.0))
sketch12.addConstraint(Sketcher.Constraint("DistanceX", -1, 1, 0, 2, 261.0))
sketch12.addConstraint(Sketcher.Constraint("DistanceY", 0, 2, -1, 1, 22.504085))
pad5 = body.newObject("PartDesign::Pad", "Pad004")
pad5.Profile = sketch12
pad5.Length = 3

# Sketch on XY plane
sketch13 = body.newObject("Sketcher::SketchObject", "Sketch012")
sketch13.AttachmentSupport = (doc.getObject("XY_Plane"), [""])
sketch13.MapMode = "FlatFace"
sketch13.addGeometry(Part.Circle(V(248, 9, 0), V(0, 0, 1), 5), False)
sketch13.addGeometry(Part.Circle(V(278, 7, 0), V(0, 0, 1), 5), False)
sketch13.addConstraint(Sketcher.Constraint("Equal", 0, 1))
sketch13.addConstraint(Sketcher.Constraint("Diameter", 0, 10.0))
sketch13.addConstraint(Sketcher.Constraint("DistanceX", 0, 3, 1, 3, 29.0))
sketch13.addConstraint(Sketcher.Constraint("DistanceY", 1, 3, 0, 3, 2.0))
sketch13.addConstraint(Sketcher.Constraint("DistanceX", -1, 1, 0, 3, 248.5))
sketch13.addConstraint(Sketcher.Constraint("DistanceY", -1, 1, 0, 3, 8.995915))
doc.recompute()
hole5 = body.newObject("PartDesign::Hole", "Hole004")
hole5.Profile = sketch13
hole5.ThreadType = "None"
hole5.Diameter = 10
hole5.DepthType = "Dimension"
hole5.Depth = 3
hole5.DrillPoint = "Flat"
hole5.Reversed = True

# Sketch on XY plane
sketch14 = body.newObject("Sketcher::SketchObject", "Sketch013")
sketch14.AttachmentSupport = (doc.getObject("XY_Plane"), [""])
sketch14.MapMode = "FlatFace"
sketch14.addGeometry(Part.Circle(V(241, -15.5, 0), V(0, 0, 1), 1.6), False)
sketch14.addGeometry(Part.Circle(V(285, -15.5, 0), V(0, 0, 1), 1.6), False)
sketch14.addGeometry(Part.Circle(V(270, -15.5, 0), V(0, 0, 1), 1.6), False)
sketch14.addGeometry(Part.Circle(V(256, -15.5, 0), V(0, 0, 1), 1.6), False)
sketch14.addConstraint(Sketcher.Constraint("Equal", 0, 1))
sketch14.addConstraint(Sketcher.Constraint("Equal", 1, 2))
sketch14.addConstraint(Sketcher.Constraint("Equal", 2, 3))
sketch14.addConstraint(Sketcher.Constraint("Horizontal", 0, 3, 1, 3))
sketch14.addConstraint(Sketcher.Constraint("Horizontal", 1, 3, 2, 3))
sketch14.addConstraint(Sketcher.Constraint("Horizontal", 2, 3, 3, 3))
sketch14.addConstraint(Sketcher.Constraint("Diameter", 0, 3.3))
sketch14.addConstraint(Sketcher.Constraint("DistanceX", -1, 1, 0, 3, 241.0))
sketch14.addConstraint(Sketcher.Constraint("DistanceX", -1, 1, 1, 3, 285.0))
sketch14.addConstraint(Sketcher.Constraint("DistanceX", -1, 1, 2, 3, 270.0))
sketch14.addConstraint(Sketcher.Constraint("DistanceX", -1, 1, 3, 3, 256.0))
sketch14.addConstraint(Sketcher.Constraint("DistanceY", 0, 3, -1, 1, 15.504085))
doc.recompute()
hole6 = body.newObject("PartDesign::Hole", "Hole005")
hole6.Profile = sketch14
hole6.ThreadType = "None"
hole6.Diameter = 3.3
hole6.DepthType = "Dimension"
hole6.Depth = 3.001
hole6.DrillPoint = "Flat"
hole6.Reversed = True

# Sketch on XY plane
sketch15 = body.newObject("Sketcher::SketchObject", "Sketch014")
sketch15.AttachmentSupport = (doc.getObject("XY_Plane"), [""])
sketch15.MapMode = "FlatFace"
sketch15.addGeometry(Part.LineSegment(V(261, 34, 0), V(261, 19, 0)), False)
sketch15.addGeometry(Part.LineSegment(V(261, 19, 0), V(236, 19, 0)), False)
sketch15.addGeometry(Part.LineSegment(V(236, 19, 0), V(236, 34, 0)), False)
sketch15.addGeometry(Part.LineSegment(V(236, 34, 0), V(261, 34, 0)), False)
sketch15.addConstraint(Sketcher.Constraint("Coincident", 0, 2, 1, 1))
sketch15.addConstraint(Sketcher.Constraint("Coincident", 1, 2, 2, 1))
sketch15.addConstraint(Sketcher.Constraint("Coincident", 2, 2, 3, 1))
sketch15.addConstraint(Sketcher.Constraint("Coincident", 3, 2, 0, 1))
sketch15.addConstraint(Sketcher.Constraint("Vertical", 0))
sketch15.addConstraint(Sketcher.Constraint("Horizontal", 1))
sketch15.addConstraint(Sketcher.Constraint("Vertical", 2))
sketch15.addConstraint(Sketcher.Constraint("Horizontal", 3))
sketch15.addConstraint(Sketcher.Constraint("DistanceX", 1, 2, 1, 1, 25.0))
sketch15.addConstraint(Sketcher.Constraint("DistanceY", 0, 2, 0, 1, 15.0))
sketch15.addConstraint(Sketcher.Constraint("DistanceX", -1, 1, 0, 2, 261.0))
sketch15.addConstraint(Sketcher.Constraint("DistanceY", -1, 1, 0, 2, 19.495915))
pad6 = body.newObject("PartDesign::Pad", "Pad005")
pad6.Profile = sketch15
pad6.Length = 3

# Sketch on XY plane
sketch16 = body.newObject("Sketcher::SketchObject", "Sketch015")
sketch16.AttachmentSupport = (doc.getObject("XY_Plane"), [""])
sketch16.MapMode = "FlatFace"
sketch16.addGeometry(Part.Circle(V(241, 29.5, 0), V(0, 0, 1), 1.6), False)
sketch16.addGeometry(Part.Circle(V(285, 29.5, 0), V(0, 0, 1), 1.6), False)
sketch16.addGeometry(Part.Circle(V(270, 29.5, 0), V(0, 0, 1), 1.6), False)
sketch16.addGeometry(Part.Circle(V(256, 29.5, 0), V(0, 0, 1), 1.6), False)
sketch16.addConstraint(Sketcher.Constraint("Equal", 0, 1))
sketch16.addConstraint(Sketcher.Constraint("Equal", 1, 2))
sketch16.addConstraint(Sketcher.Constraint("Equal", 2, 3))
sketch16.addConstraint(Sketcher.Constraint("Horizontal", 0, 3, 1, 3))
sketch16.addConstraint(Sketcher.Constraint("Horizontal", 1, 3, 2, 3))
sketch16.addConstraint(Sketcher.Constraint("Horizontal", 2, 3, 3, 3))
sketch16.addConstraint(Sketcher.Constraint("Diameter", 0, 3.3))
sketch16.addConstraint(Sketcher.Constraint("DistanceX", -1, 1, 0, 3, 241.0))
sketch16.addConstraint(Sketcher.Constraint("DistanceX", -1, 1, 1, 3, 285.0))
sketch16.addConstraint(Sketcher.Constraint("DistanceX", -1, 1, 2, 3, 270.0))
sketch16.addConstraint(Sketcher.Constraint("DistanceX", -1, 1, 3, 3, 256.0))
sketch16.addConstraint(Sketcher.Constraint("DistanceY", -1, 1, 0, 3, 29.495915))
doc.recompute()
hole7 = body.newObject("PartDesign::Hole", "Hole006")
hole7.Profile = sketch16
hole7.ThreadType = "None"
hole7.Diameter = 3.3
hole7.DepthType = "Dimension"
hole7.Depth = 3
hole7.DrillPoint = "Flat"
hole7.Reversed = True

# Sketch on XY plane
sketch17 = body.newObject("Sketcher::SketchObject", "Sketch016")
sketch17.AttachmentSupport = (doc.getObject("XY_Plane"), [""])
sketch17.MapMode = "FlatFace"
sketch17.addGeometry(Part.LineSegment(V(236, 30, 0), V(236, 15, 0)), False)
sketch17.addGeometry(Part.LineSegment(V(236, 15, 0), V(75, 15, 0)), False)
sketch17.addGeometry(Part.LineSegment(V(75, 15, 0), V(75, 30, 0)), False)
sketch17.addGeometry(Part.LineSegment(V(75, 30, 0), V(236, 30, 0)), False)
sketch17.addConstraint(Sketcher.Constraint("Coincident", 0, 2, 1, 1))
sketch17.addConstraint(Sketcher.Constraint("Coincident", 1, 2, 2, 1))
sketch17.addConstraint(Sketcher.Constraint("Coincident", 2, 2, 3, 1))
sketch17.addConstraint(Sketcher.Constraint("Coincident", 3, 2, 0, 1))
sketch17.addConstraint(Sketcher.Constraint("Vertical", 0))
sketch17.addConstraint(Sketcher.Constraint("Horizontal", 1))
sketch17.addConstraint(Sketcher.Constraint("Vertical", 2))
sketch17.addConstraint(Sketcher.Constraint("Horizontal", 3))
sketch17.addConstraint(Sketcher.Constraint("DistanceX", 1, 2, 1, 1, 161.0))
sketch17.addConstraint(Sketcher.Constraint("DistanceY", 0, 2, 0, 1, 15.0))
sketch17.addConstraint(Sketcher.Constraint("DistanceX", -1, 1, 0, 2, 236.0))
sketch17.addConstraint(Sketcher.Constraint("DistanceY", -1, 1, 0, 2, 15.0))
pad7 = body.newObject("PartDesign::Pad", "Pad006")
pad7.Profile = sketch17
pad7.Length = 3

# Sketch on XY plane
sketch18 = body.newObject("Sketcher::SketchObject", "Sketch017")
sketch18.AttachmentSupport = (doc.getObject("XY_Plane"), [""])
sketch18.MapMode = "FlatFace"
sketch18.addGeometry(Part.Circle(V(21, -14, 0), V(0, 0, 1), 1.1), False)
sketch18.addConstraint(Sketcher.Constraint("Diameter", 0, 2.3))
sketch18.addConstraint(Sketcher.Constraint("DistanceX", -1, 1, 0, 3, 21.0))
sketch18.addConstraint(Sketcher.Constraint("DistanceY", 0, 3, -1, 1, 14.004085))
doc.recompute()
hole8 = body.newObject("PartDesign::Hole", "Hole007")
hole8.Profile = sketch18
hole8.ThreadType = "None"
hole8.Diameter = 2.3
hole8.DepthType = "ThroughAll"
hole8.Reversed = True

# Sketch on XY plane
sketch19 = body.newObject("Sketcher::SketchObject", "Sketch018")
sketch19.AttachmentSupport = (doc.getObject("XY_Plane"), [""])
sketch19.MapMode = "FlatFace"
sketch19.addGeometry(Part.ArcOfCircle(Part.Circle(V(-39, 9, 0), V(0, 0, 1), 12), math.radians(90), math.radians(270)), False)
sketch19.addGeometry(Part.LineSegment(V(-39, 21, 0), V(-24, 21, 0)), False)
sketch19.addGeometry(Part.ArcOfCircle(Part.Circle(V(-24, 9, 0), V(0, 0, 1), 12), math.radians(-90), math.radians(90)), False)
sketch19.addGeometry(Part.LineSegment(V(-24, -3, 0), V(-39, -3, 0)), False)
sketch19.addConstraint(Sketcher.Constraint("Tangent", 0, 1, 1, 1))
sketch19.addConstraint(Sketcher.Constraint("Tangent", 1, 2, 2, 2))
sketch19.addConstraint(Sketcher.Constraint("Tangent", 2, 1, 3, 1))
sketch19.addConstraint(Sketcher.Constraint("Tangent", 3, 2, 0, 2))
sketch19.addConstraint(Sketcher.Constraint("Horizontal", 1))
sketch19.addConstraint(Sketcher.Constraint("Horizontal", 3))
sketch19.addConstraint(Sketcher.Constraint("Radius", 0, 12.0))
sketch19.addConstraint(Sketcher.Constraint("DistanceX", 1, 1, 1, 2, 15.0))
sketch19.addConstraint(Sketcher.Constraint("DistanceX", 0, 3, -1, 1, 39.0))
sketch19.addConstraint(Sketcher.Constraint("DistanceY", -1, 1, 0, 3, 9.0))
pocket4 = body.newObject("PartDesign::Pocket", "Pocket003")
pocket4.Profile = sketch19
pocket4.Length = 10
pocket4.Reversed = True

doc.recompute()
